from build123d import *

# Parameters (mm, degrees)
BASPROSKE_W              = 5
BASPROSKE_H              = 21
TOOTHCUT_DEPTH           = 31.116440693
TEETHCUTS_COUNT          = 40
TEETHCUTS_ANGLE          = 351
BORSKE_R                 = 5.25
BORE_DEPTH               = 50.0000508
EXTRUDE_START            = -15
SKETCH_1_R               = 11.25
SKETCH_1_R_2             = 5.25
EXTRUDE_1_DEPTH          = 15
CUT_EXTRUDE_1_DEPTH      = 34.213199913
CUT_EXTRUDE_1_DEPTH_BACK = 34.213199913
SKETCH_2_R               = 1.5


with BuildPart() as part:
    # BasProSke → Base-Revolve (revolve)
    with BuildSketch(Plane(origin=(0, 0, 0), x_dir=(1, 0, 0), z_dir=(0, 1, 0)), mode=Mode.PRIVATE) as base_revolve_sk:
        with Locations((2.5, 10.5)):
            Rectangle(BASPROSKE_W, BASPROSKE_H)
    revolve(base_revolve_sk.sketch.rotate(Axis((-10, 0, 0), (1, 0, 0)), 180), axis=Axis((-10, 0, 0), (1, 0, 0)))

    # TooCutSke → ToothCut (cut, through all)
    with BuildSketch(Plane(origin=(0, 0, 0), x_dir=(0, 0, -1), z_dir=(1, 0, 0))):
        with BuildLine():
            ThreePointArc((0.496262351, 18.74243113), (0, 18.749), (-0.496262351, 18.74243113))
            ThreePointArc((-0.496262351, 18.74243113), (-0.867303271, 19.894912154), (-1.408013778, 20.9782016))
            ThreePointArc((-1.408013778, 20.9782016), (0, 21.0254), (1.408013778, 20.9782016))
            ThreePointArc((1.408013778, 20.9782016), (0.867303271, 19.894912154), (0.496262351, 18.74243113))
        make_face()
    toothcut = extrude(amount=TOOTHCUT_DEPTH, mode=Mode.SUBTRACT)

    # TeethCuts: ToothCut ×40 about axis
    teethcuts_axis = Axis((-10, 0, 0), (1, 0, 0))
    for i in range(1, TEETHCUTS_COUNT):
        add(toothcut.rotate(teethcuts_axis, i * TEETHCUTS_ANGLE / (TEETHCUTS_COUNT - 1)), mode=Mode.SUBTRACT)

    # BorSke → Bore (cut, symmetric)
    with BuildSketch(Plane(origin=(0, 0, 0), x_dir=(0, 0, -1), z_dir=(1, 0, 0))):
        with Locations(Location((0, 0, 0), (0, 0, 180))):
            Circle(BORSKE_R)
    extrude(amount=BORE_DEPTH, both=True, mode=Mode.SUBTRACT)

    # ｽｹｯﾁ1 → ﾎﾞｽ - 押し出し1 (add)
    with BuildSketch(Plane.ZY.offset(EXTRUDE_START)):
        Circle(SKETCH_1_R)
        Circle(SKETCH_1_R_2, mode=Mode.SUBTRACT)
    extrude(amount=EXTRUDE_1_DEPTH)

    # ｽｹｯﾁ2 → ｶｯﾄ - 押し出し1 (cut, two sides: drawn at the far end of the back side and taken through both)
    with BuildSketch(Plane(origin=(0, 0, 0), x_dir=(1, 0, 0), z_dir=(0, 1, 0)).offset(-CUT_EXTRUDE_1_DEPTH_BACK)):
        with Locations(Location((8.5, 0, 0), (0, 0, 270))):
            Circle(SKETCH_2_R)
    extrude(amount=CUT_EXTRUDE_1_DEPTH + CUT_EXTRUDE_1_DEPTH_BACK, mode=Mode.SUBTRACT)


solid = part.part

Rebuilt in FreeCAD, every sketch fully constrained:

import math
import FreeCAD as App
import Part
import Sketcher
from FreeCAD import Vector

doc = App.newDocument("Part")
body = doc.addObject("PartDesign::Body", "Body")

sketch1 = body.newObject("Sketcher::SketchObject", "Sketch")
sketch1.AttachmentSupport = (doc.getObject("XZ_Plane"), [""])
sketch1.MapMode = "FlatFace"
sketch1.addGeometry([
    Part.LineSegment(Vector(0, -21, 0), Vector(0, 0, 0)),
    Part.LineSegment(Vector(0, 0, 0), Vector(5, 0, 0)),
    Part.LineSegment(Vector(5, 0, 0), Vector(5, -21, 0)),
    Part.LineSegment(Vector(5, -21, 0), Vector(0, -21, 0)),
], False)
sketch1.addConstraint([
    Sketcher.Constraint("Coincident", 0, 2, 1, 1),
    Sketcher.Constraint("Coincident", 1, 2, 2, 1),
    Sketcher.Constraint("Coincident", 2, 2, 3, 1),
    Sketcher.Constraint("Coincident", 3, 2, 0, 1),
    Sketcher.Constraint("Vertical", 0),
    Sketcher.Constraint("Horizontal", 1),
    Sketcher.Constraint("Vertical", 2),
    Sketcher.Constraint("Horizontal", 3),
    Sketcher.Constraint("Coincident", 0, 2, -1, 1),
    Sketcher.Constraint("DistanceX", 1, 1, 1, 2, 5.0),
    Sketcher.Constraint("DistanceY", 0, 1, 0, 2, 21.0),
])
revolution = body.newObject("PartDesign::Revolution", "Revolution")
revolution.Profile = sketch1
revolution.ReferenceAxis = (sketch1, ["H_Axis"])
revolution.Angle = 360

sketch2 = body.newObject("Sketcher::SketchObject", "Sketch001")
sketch2.AttachmentSupport = (doc.getObject("YZ_Plane"), [""])
sketch2.MapMode = "FlatFace"
sketch2.addGeometry([
    Part.ArcOfCircle(Part.Circle(Vector(0, 0, 0), Vector(0, 0, 1), 18.7), math.radians(-1.52), math.radians(1.52)),
    Part.ArcOfCircle(Part.Circle(Vector(16.9, -8.3, 0), Vector(0, 0, 1), 8), math.radians(59.13), math.radians(76.49)),
    Part.ArcOfCircle(Part.Circle(Vector(0, 0, 0), Vector(0, 0, 1), 21), math.radians(-3.84), math.radians(3.84)),
    Part.ArcOfCircle(Part.Circle(Vector(16.9, 8.3, 0), Vector(0, 0, 1), 8), math.radians(-76.49), math.radians(-59.13)),
], False)
sketch2.addConstraint([
    Sketcher.Constraint("Coincident", 0, 1, 1, 2),
    Sketcher.Constraint("Coincident", 1, 1, 2, 1),
    Sketcher.Constraint("Coincident", 2, 2, 3, 2),
    Sketcher.Constraint("Coincident", 3, 1, 0, 2),
    Sketcher.Constraint("Coincident", 0, 3, -1, 1),
    Sketcher.Constraint("Coincident", 2, 3, -1, 1),
    Sketcher.Constraint("Equal", 1, 3),
    Sketcher.Constraint("Symmetric", 1, 3, 3, 3, -1),
    Sketcher.Constraint("Radius", 1, 8.0),
    Sketcher.Constraint("Radius", 0, 18.748999),
    Sketcher.Constraint("Radius", 2, 21.0254),
    Sketcher.Constraint("DistanceX", -1, 1, 1, 1, 20.978202),
    Sketcher.Constraint("DistanceX", 1, 3, 0, 1, 1.8684),
])
pocket1 = body.newObject("PartDesign::Pocket", "Pocket")
pocket1.Profile = sketch2
pocket1.Type = "ThroughAll"
pocket1.Reversed = True
doc.recompute()

polarpattern = body.newObject("PartDesign::PolarPattern", "PolarPattern")
polarpattern.Originals = [pocket1]
polarpattern.Axis = (doc.getObject("X_Axis"), [""])
polarpattern.Angle = 360
polarpattern.Occurrences = 40
body.Tip = polarpattern

sketch3 = body.newObject("Sketcher::SketchObject", "Sketch002")
sketch3.AttachmentSupport = (doc.getObject("YZ_Plane"), [""])
sketch3.MapMode = "FlatFace"
sketch3.addGeometry(Part.Circle(Vector(0, 0, 0), Vector(0, 0, 1), 5), False)
sketch3.addConstraint([
    Sketcher.Constraint("Coincident", 0, 3, -1, 1),
    Sketcher.Constraint("Diameter", 0, 10.5),
])
pocket2 = body.newObject("PartDesign::Pocket", "Pocket001")
pocket2.Profile = sketch3
pocket2.Length = 100.000102
pocket2.Midplane = True

sketch4 = body.newObject("Sketcher::SketchObject", "Sketch003")
sketch4.AttachmentSupport = (doc.getObject("YZ_Plane"), [""])
sketch4.MapMode = "FlatFace"
sketch4.AttachmentOffset = App.Placement(Vector(0, 0, 15), App.Rotation())
sketch4.addGeometry([
    Part.Circle(Vector(0, 0, 0), Vector(0, 0, 1), 11),
    Part.Circle(Vector(0, 0, 0), Vector(0, 0, 1), 5),
], False)
sketch4.addConstraint([
    Sketcher.Constraint("Coincident", 0, 3, -1, 1),
    Sketcher.Constraint("Coincident", 1, 3, -1, 1),
    Sketcher.Constraint("Diameter", 0, 22.5),
    Sketcher.Constraint("Diameter", 1, 10.5),
])
pad1 = body.newObject("PartDesign::Pad", "Pad")
pad1.Profile = sketch4
pad1.Length = 15
pad1.Reversed = True

sketch5 = body.newObject("Sketcher::SketchObject", "Sketch004")
sketch5.AttachmentSupport = (doc.getObject("XZ_Plane"), [""])
sketch5.MapMode = "FlatFace"
sketch5.addGeometry(Part.Circle(Vector(8.5, 0, 0), Vector(0, 0, 1), 1.5), False)
sketch5.addConstraint([
    Sketcher.Constraint("PointOnObject", 0, 3, -1),
    Sketcher.Constraint("Diameter", 0, 3.0),
    Sketcher.Constraint("DistanceX", -1, 1, 0, 3, 8.5),
])
pocket3 = body.newObject("PartDesign::Pocket", "Pocket002")
pocket3.Profile = sketch5
pocket3.Type = "ThroughAll"
pocket3.Midplane = True

doc.recompute()
